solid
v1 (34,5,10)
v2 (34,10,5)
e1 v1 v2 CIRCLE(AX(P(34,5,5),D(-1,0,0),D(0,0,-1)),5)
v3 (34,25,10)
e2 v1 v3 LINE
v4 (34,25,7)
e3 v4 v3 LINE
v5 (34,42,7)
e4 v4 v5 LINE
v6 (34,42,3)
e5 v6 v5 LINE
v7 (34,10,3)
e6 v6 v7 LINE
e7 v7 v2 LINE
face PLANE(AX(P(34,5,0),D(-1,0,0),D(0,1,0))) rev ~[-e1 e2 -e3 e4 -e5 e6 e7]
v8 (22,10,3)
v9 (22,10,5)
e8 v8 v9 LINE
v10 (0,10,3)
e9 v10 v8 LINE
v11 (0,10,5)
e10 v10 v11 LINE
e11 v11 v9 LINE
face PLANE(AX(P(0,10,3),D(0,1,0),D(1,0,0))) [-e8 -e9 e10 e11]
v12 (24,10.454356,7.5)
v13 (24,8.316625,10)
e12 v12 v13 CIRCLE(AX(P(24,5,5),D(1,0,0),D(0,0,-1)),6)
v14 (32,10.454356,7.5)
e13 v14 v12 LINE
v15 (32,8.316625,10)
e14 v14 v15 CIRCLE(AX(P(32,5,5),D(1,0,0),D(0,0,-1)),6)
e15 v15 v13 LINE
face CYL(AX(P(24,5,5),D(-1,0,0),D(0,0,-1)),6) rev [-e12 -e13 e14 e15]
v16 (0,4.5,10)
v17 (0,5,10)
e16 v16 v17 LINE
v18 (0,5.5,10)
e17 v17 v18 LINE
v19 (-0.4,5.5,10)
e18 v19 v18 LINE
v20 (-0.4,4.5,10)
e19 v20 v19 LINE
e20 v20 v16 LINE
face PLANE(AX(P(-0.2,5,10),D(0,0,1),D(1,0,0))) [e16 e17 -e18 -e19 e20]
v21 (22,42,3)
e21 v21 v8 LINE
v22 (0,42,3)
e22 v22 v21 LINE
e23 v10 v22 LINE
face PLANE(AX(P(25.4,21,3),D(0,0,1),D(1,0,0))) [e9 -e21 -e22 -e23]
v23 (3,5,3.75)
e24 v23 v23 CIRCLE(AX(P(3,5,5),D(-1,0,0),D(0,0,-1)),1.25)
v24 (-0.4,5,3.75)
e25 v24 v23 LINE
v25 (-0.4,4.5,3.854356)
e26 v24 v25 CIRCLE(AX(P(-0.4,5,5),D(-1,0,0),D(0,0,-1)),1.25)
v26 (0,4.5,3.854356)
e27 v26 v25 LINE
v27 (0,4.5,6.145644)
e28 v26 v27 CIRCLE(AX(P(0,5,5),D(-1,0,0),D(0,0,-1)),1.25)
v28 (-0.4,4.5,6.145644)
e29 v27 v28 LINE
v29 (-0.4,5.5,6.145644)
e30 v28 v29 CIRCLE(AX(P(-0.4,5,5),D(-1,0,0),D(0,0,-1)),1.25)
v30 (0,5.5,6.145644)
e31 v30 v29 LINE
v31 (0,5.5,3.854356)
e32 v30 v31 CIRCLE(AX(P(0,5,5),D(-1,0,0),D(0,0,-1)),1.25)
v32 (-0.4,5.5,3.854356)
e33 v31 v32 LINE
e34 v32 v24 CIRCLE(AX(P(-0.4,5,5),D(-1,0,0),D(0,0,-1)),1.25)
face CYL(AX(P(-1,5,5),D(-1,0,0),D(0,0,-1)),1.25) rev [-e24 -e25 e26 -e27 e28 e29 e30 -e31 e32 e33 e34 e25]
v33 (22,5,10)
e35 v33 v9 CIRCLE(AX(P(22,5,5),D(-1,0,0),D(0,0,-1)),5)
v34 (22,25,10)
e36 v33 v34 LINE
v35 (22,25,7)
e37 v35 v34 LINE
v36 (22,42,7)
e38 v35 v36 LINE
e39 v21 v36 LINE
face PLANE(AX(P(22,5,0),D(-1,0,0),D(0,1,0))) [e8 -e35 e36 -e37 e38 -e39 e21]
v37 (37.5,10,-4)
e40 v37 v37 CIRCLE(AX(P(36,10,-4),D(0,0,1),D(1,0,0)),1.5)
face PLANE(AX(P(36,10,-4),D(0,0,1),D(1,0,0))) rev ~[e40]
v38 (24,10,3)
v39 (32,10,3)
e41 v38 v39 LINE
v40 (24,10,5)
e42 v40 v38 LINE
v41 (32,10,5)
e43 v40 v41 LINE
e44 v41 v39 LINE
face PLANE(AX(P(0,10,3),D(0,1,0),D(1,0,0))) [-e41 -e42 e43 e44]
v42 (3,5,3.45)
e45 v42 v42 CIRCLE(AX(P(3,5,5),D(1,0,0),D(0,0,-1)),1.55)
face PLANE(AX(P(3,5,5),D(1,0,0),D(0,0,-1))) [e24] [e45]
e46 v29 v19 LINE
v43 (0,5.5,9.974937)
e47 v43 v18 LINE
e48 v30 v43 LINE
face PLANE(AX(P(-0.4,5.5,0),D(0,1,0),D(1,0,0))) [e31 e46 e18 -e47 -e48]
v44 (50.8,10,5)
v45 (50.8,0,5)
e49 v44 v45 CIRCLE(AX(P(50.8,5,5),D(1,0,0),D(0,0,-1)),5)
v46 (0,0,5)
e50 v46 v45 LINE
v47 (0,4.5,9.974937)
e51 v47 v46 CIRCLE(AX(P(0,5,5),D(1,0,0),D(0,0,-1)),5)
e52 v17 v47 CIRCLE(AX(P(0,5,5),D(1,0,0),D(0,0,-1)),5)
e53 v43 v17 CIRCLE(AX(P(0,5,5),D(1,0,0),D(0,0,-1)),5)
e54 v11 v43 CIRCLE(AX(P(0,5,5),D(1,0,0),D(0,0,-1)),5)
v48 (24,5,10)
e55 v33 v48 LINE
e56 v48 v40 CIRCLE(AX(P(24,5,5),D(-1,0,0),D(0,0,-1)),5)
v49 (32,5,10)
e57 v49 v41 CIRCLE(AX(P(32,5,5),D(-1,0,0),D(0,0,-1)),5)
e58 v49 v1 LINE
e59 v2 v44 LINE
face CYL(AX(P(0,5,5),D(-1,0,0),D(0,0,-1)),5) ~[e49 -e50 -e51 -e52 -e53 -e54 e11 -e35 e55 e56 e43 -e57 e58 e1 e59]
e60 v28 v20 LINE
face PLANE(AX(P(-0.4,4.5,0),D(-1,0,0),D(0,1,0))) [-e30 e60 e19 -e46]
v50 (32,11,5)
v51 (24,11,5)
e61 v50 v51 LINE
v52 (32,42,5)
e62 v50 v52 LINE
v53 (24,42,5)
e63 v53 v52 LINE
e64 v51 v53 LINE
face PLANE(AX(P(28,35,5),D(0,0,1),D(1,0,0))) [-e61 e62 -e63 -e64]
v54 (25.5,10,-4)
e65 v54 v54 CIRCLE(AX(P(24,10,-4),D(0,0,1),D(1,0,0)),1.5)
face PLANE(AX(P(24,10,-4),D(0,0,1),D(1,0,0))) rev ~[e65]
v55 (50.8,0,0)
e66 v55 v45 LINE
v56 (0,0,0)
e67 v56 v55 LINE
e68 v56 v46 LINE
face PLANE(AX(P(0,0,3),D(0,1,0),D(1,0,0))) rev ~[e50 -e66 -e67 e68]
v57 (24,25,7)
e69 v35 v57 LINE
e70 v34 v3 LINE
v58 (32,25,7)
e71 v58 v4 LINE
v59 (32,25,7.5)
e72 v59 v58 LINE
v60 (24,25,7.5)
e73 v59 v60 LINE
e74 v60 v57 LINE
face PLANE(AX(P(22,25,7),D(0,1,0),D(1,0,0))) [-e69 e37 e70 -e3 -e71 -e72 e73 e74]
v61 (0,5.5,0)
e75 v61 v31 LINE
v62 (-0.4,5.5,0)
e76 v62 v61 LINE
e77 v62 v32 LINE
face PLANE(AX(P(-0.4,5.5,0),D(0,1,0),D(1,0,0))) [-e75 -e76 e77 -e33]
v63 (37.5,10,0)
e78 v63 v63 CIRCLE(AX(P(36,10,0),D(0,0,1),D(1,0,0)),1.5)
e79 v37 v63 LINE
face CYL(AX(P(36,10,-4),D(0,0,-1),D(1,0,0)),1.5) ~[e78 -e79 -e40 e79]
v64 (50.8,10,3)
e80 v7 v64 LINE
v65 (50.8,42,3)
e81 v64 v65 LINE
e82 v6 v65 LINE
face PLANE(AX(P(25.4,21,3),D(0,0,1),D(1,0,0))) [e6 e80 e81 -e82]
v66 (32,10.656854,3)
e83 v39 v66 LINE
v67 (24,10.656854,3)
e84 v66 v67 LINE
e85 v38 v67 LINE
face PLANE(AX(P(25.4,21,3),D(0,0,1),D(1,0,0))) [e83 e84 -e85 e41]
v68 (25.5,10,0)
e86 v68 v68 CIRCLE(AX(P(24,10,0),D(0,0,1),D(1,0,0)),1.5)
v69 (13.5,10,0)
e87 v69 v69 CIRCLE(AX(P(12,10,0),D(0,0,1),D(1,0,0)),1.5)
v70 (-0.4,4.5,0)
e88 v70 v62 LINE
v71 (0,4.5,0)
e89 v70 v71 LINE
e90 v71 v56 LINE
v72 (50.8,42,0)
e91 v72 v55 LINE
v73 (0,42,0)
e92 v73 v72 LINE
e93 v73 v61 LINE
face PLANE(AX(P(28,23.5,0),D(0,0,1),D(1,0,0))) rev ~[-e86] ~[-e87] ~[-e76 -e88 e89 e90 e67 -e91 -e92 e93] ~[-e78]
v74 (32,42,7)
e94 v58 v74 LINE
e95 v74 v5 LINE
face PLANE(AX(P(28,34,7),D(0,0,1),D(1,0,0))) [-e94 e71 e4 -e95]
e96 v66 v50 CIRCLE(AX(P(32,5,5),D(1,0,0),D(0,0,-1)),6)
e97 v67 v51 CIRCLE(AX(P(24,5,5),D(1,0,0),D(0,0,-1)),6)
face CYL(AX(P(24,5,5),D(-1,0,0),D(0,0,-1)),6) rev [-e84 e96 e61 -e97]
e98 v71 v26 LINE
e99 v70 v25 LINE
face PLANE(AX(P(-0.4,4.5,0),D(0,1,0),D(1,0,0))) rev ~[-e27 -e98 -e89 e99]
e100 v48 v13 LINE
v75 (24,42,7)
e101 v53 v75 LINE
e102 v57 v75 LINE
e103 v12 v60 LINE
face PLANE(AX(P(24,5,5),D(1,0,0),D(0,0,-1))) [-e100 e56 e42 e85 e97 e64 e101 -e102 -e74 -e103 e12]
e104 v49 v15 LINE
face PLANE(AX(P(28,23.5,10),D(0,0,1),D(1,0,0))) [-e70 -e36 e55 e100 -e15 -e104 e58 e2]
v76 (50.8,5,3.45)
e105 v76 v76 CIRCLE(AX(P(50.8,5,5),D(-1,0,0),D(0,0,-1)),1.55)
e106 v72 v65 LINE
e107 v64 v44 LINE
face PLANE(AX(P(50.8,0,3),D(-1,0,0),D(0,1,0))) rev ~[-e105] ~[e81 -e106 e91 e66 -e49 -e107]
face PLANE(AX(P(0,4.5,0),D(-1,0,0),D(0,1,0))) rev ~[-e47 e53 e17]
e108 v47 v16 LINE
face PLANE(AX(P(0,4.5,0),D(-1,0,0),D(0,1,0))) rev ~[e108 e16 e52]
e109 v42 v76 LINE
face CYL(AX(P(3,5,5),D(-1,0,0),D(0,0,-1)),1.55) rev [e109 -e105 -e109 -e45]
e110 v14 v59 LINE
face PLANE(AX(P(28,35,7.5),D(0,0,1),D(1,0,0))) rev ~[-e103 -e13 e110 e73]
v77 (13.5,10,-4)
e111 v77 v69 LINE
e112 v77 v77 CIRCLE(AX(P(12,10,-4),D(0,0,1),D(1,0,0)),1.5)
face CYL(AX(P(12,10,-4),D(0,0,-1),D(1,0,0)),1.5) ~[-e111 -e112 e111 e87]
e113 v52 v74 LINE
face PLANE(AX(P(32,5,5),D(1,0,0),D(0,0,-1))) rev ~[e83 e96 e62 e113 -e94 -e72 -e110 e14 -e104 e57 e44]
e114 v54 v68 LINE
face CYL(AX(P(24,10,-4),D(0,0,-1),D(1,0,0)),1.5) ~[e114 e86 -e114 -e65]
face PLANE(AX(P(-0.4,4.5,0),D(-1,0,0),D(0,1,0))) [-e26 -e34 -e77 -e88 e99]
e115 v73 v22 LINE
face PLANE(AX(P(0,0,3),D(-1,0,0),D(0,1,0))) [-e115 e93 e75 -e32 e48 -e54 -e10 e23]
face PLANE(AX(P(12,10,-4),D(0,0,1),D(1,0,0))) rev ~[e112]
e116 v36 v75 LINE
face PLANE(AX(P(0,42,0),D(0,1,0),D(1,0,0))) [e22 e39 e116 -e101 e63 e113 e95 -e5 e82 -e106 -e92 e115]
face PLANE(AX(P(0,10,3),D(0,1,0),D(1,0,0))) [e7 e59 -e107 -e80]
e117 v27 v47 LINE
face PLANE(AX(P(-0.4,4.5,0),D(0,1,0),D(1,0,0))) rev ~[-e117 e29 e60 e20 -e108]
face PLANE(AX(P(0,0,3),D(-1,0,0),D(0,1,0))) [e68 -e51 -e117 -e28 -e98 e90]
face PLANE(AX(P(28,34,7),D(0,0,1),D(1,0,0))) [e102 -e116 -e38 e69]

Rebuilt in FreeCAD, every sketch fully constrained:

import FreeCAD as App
import Part
import Sketcher
from FreeCAD import Vector

doc = App.newDocument("Part")
body = doc.addObject("PartDesign::Body", "Body")

# Sketch on XY plane
sketch1 = body.newObject("Sketcher::SketchObject", "Sketch")
sketch1.AttachmentSupport = (doc.getObject("XY_Plane"), [""])
sketch1.MapMode = "FlatFace"
sketch1.AttachmentOffset = App.Placement(Vector(0, 0, -4), App.Rotation())
sketch1.addGeometry(Part.Circle(Vector(12, 10, 0), Vector(0, 0, 1), 1.5), False)
sketch1.addConstraint([
    Sketcher.Constraint("Diameter", 0, 3.0),
    Sketcher.Constraint("DistanceX", -1, 1, 0, 3, 12.0),
    Sketcher.Constraint("DistanceY", -1, 1, 0, 3, 10.0),
])
pad1 = body.newObject("PartDesign::Pad", "Pad")
pad1.Profile = sketch1
pad1.Length = 4
body2 = doc.addObject("PartDesign::Body", "Body001")

# Sketch on XY plane
sketch2 = body2.newObject("Sketcher::SketchObject", "Sketch001")
sketch2.AttachmentSupport = (doc.getObject("XY_Plane001"), [""])
sketch2.MapMode = "FlatFace"
sketch2.AttachmentOffset = App.Placement(Vector(0, 0, -4), App.Rotation())
sketch2.addGeometry(Part.Circle(Vector(24, 10, 0), Vector(0, 0, 1), 1.5), False)
sketch2.addConstraint([
    Sketcher.Constraint("Diameter", 0, 3.0),
    Sketcher.Constraint("DistanceX", -1, 1, 0, 3, 24.0),
    Sketcher.Constraint("DistanceY", -1, 1, 0, 3, 10.0),
])
pad2 = body2.newObject("PartDesign::Pad", "Pad001")
pad2.Profile = sketch2
pad2.Length = 4
body3 = doc.addObject("PartDesign::Body", "Body002")

# Sketch on XY plane
sketch3 = body3.newObject("Sketcher::SketchObject", "Sketch002")
sketch3.AttachmentSupport = (doc.getObject("XY_Plane002"), [""])
sketch3.MapMode = "FlatFace"
sketch3.AttachmentOffset = App.Placement(Vector(0, 0, -4), App.Rotation())
sketch3.addGeometry(Part.Circle(Vector(36, 10, 0), Vector(0, 0, 1), 1.5), False)
sketch3.addConstraint([
    Sketcher.Constraint("Diameter", 0, 3.0),
    Sketcher.Constraint("DistanceX", -1, 1, 0, 3, 36.0),
    Sketcher.Constraint("DistanceY", -1, 1, 0, 3, 10.0),
])
pad3 = body3.newObject("PartDesign::Pad", "Pad002")
pad3.Profile = sketch3
pad3.Length = 4
body4 = doc.addObject("PartDesign::Body", "Body003")

# Sketch on XY plane
sketch4 = body4.newObject("Sketcher::SketchObject", "Sketch003")
sketch4.AttachmentSupport = (doc.getObject("XY_Plane003"), [""])
sketch4.MapMode = "FlatFace"
sketch4.addGeometry(Part.Circle(Vector(0, 0, 0), Vector(0, 0, 1), 1.2), False)
sketch4.addConstraint([
    Sketcher.Constraint("Coincident", 0, 3, -1, 1),
    Sketcher.Constraint("Diameter", 0, 2.5),
])
pad4 = body4.newObject("PartDesign::Pad", "Pad003")
pad4.Profile = sketch4
pad4.Length = 10
body5 = doc.addObject("PartDesign::Body", "Body004")
doc.recompute()

body4.Placement = App.Placement(Vector(0, 0, 0), App.Rotation(Vector(0, 1, 0), 90))
boolean = body5.newObject("PartDesign::Boolean", "Boolean")
boolean.Type = "Fuse"
boolean.addObjects([body4])
body6 = doc.addObject("PartDesign::Body", "Body005")
doc.recompute()

body5.Placement = App.Placement(Vector(-1, 5, 5), App.Rotation(Vector(0, 0, 1), 0))
boolean2 = body6.newObject("PartDesign::Boolean", "Boolean001")
boolean2.Type = "Fuse"
boolean2.addObjects([body5])
body7 = doc.addObject("PartDesign::Body", "Body006")

# Sketch on XY plane
sketch5 = body7.newObject("Sketcher::SketchObject", "Sketch004")
sketch5.AttachmentSupport = (doc.getObject("XY_Plane006"), [""])
sketch5.MapMode = "FlatFace"
sketch5.addGeometry(Part.Circle(Vector(0, 0, 0), Vector(0, 0, 1), 1.6), False)
sketch5.addConstraint([
    Sketcher.Constraint("Coincident", 0, 3, -1, 1),
    Sketcher.Constraint("Diameter", 0, 3.1),
])
pad5 = body7.newObject("PartDesign::Pad", "Pad004")
pad5.Profile = sketch5
pad5.Length = 50.8
body8 = doc.addObject("PartDesign::Body", "Body007")
doc.recompute()

body7.Placement = App.Placement(Vector(0, 0, 0), App.Rotation(Vector(0, 1, 0), 90))
boolean3 = body8.newObject("PartDesign::Boolean", "Boolean002")
boolean3.Type = "Fuse"
boolean3.addObjects([body7])
body9 = doc.addObject("PartDesign::Body", "Body008")
doc.recompute()

body8.Placement = App.Placement(Vector(3, 5, 5), App.Rotation(Vector(0, 0, 1), 0))
boolean4 = body9.newObject("PartDesign::Boolean", "Boolean003")
boolean4.Type = "Fuse"
boolean4.addObjects([body8])
body10 = doc.addObject("PartDesign::Body", "Body009")

# Sketch on XY plane
sketch6 = body10.newObject("Sketcher::SketchObject", "Sketch005")
sketch6.AttachmentSupport = (doc.getObject("XY_Plane009"), [""])
sketch6.MapMode = "FlatFace"
sketch6.addGeometry(Part.Circle(Vector(0, 0, 0), Vector(0, 0, 1), 6), False)
sketch6.addConstraint([
    Sketcher.Constraint("Coincident", 0, 3, -1, 1),
    Sketcher.Constraint("Diameter", 0, 12.0),
])
pad6 = body10.newObject("PartDesign::Pad", "Pad005")
pad6.Profile = sketch6
pad6.Length = 8
body11 = doc.addObject("PartDesign::Body", "Body010")
doc.recompute()

body10.Placement = App.Placement(Vector(0, 0, 0), App.Rotation(Vector(0, 1, 0), 90))
boolean5 = body11.newObject("PartDesign::Boolean", "Boolean004")
boolean5.Type = "Fuse"
boolean5.addObjects([body10])
body12 = doc.addObject("PartDesign::Body", "Body011")
doc.recompute()

body11.Placement = App.Placement(Vector(24, 5, 5), App.Rotation(Vector(0, 0, 1), 0))
boolean6 = body12.newObject("PartDesign::Boolean", "Boolean005")
boolean6.Type = "Fuse"
boolean6.addObjects([body11])
body13 = doc.addObject("PartDesign::Body", "Body012")

# Sketch on XY plane
sketch7 = body13.newObject("Sketcher::SketchObject", "Sketch006")
sketch7.AttachmentSupport = (doc.getObject("XY_Plane012"), [""])
sketch7.MapMode = "FlatFace"
sketch7.AttachmentOffset = App.Placement(Vector(0, 0, 7), App.Rotation())
sketch7.addGeometry([
    Part.LineSegment(Vector(22, 43, 0), Vector(22, 25, 0)),
    Part.LineSegment(Vector(22, 25, 0), Vector(34, 25, 0)),
    Part.LineSegment(Vector(34, 25, 0), Vector(34, 43, 0)),
    Part.LineSegment(Vector(34, 43, 0), Vector(22, 43, 0)),
], False)
sketch7.addConstraint([
    Sketcher.Constraint("Coincident", 0, 2, 1, 1),
    Sketcher.Constraint("Coincident", 1, 2, 2, 1),
    Sketcher.Constraint("Coincident", 2, 2, 3, 1),
    Sketcher.Constraint("Coincident", 3, 2, 0, 1),
    Sketcher.Constraint("Vertical", 0),
    Sketcher.Constraint("Horizontal", 1),
    Sketcher.Constraint("Vertical", 2),
    Sketcher.Constraint("Horizontal", 3),
    Sketcher.Constraint("DistanceX", 1, 1, 1, 2, 12.0),
    Sketcher.Constraint("DistanceY", 0, 2, 0, 1, 18.0),
    Sketcher.Constraint("DistanceX", -1, 1, 0, 2, 22.0),
    Sketcher.Constraint("DistanceY", -1, 1, 0, 2, 25.0),
])
pad7 = body13.newObject("PartDesign::Pad", "Pad006")
pad7.Profile = sketch7
pad7.Length = 3
body14 = doc.addObject("PartDesign::Body", "Body013")

# Sketch on XY plane
sketch8 = body14.newObject("Sketcher::SketchObject", "Sketch007")
sketch8.AttachmentSupport = (doc.getObject("XY_Plane013"), [""])
sketch8.MapMode = "FlatFace"
sketch8.AttachmentOffset = App.Placement(Vector(0, 0, 5), App.Rotation())
sketch8.addGeometry([
    Part.LineSegment(Vector(24, 60, 0), Vector(24, 10, 0)),
    Part.LineSegment(Vector(24, 10, 0), Vector(32, 10, 0)),
    Part.LineSegment(Vector(32, 10, 0), Vector(32, 60, 0)),
    Part.LineSegment(Vector(32, 60, 0), Vector(24, 60, 0)),
], False)
sketch8.addConstraint([
    Sketcher.Constraint("Coincident", 0, 2, 1, 1),
    Sketcher.Constraint("Coincident", 1, 2, 2, 1),
    Sketcher.Constraint("Coincident", 2, 2, 3, 1),
    Sketcher.Constraint("Coincident", 3, 2, 0, 1),
    Sketcher.Constraint("Vertical", 0),
    Sketcher.Constraint("Horizontal", 1),
    Sketcher.Constraint("Vertical", 2),
    Sketcher.Constraint("Horizontal", 3),
    Sketcher.Constraint("DistanceX", 1, 1, 1, 2, 8.0),
    Sketcher.Constraint("DistanceY", 0, 2, 0, 1, 50.0),
    Sketcher.Constraint("DistanceX", -1, 1, 0, 2, 24.0),
    Sketcher.Constraint("DistanceY", -1, 1, 0, 2, 10.0),
])
pad8 = body14.newObject("PartDesign::Pad", "Pad007")
pad8.Profile = sketch8
pad8.Length = 2.5
body15 = doc.addObject("PartDesign::Body", "Body014")

# Sketch on XY plane
sketch9 = body15.newObject("Sketcher::SketchObject", "Sketch008")
sketch9.AttachmentSupport = (doc.getObject("XY_Plane014"), [""])
sketch9.MapMode = "FlatFace"
sketch9.addGeometry([
    Part.LineSegment(Vector(22, 42, 0), Vector(22, 5, 0)),
    Part.LineSegment(Vector(22, 5, 0), Vector(34, 5, 0)),
    Part.LineSegment(Vector(34, 5, 0), Vector(34, 42, 0)),
    Part.LineSegment(Vector(34, 42, 0), Vector(22, 42, 0)),
], False)
sketch9.addConstraint([
    Sketcher.Constraint("Coincident", 0, 2, 1, 1),
    Sketcher.Constraint("Coincident", 1, 2, 2, 1),
    Sketcher.Constraint("Coincident", 2, 2, 3, 1),
    Sketcher.Constraint("Coincident", 3, 2, 0, 1),
    Sketcher.Constraint("Vertical", 0),
    Sketcher.Constraint("Horizontal", 1),
    Sketcher.Constraint("Vertical", 2),
    Sketcher.Constraint("Horizontal", 3),
    Sketcher.Constraint("DistanceX", 1, 1, 1, 2, 12.0),
    Sketcher.Constraint("DistanceY", 0, 2, 0, 1, 37.0),
    Sketcher.Constraint("DistanceX", -1, 1, 0, 2, 22.0),
    Sketcher.Constraint("DistanceY", -1, 1, 0, 2, 5.0),
])
pad9 = body15.newObject("PartDesign::Pad", "Pad008")
pad9.Profile = sketch9
pad9.Length = 10
doc.recompute()

boolean7 = body15.newObject("PartDesign::Boolean", "Boolean006")
boolean7.Type = "Cut"
boolean7.addObjects([body14])
doc.recompute()

boolean8 = body15.newObject("PartDesign::Boolean", "Boolean007")
boolean8.Type = "Cut"
boolean8.addObjects([body13])
doc.recompute()

boolean9 = body15.newObject("PartDesign::Boolean", "Boolean008")
boolean9.Type = "Cut"
boolean9.addObjects([body12])
body16 = doc.addObject("PartDesign::Body", "Body015")

# Sketch on XY plane
sketch10 = body16.newObject("Sketcher::SketchObject", "Sketch009")
sketch10.AttachmentSupport = (doc.getObject("XY_Plane015"), [""])
sketch10.MapMode = "FlatFace"
sketch10.addGeometry([
    Part.LineSegment(Vector(-0.4, 5.5, 0), Vector(-0.4, 4.5, 0)),
    Part.LineSegment(Vector(-0.4, 4.5, 0), Vector(0, 4.5, 0)),
    Part.LineSegment(Vector(0, 4.5, 0), Vector(0, 5.5, 0)),
    Part.LineSegment(Vector(0, 5.5, 0), Vector(-0.4, 5.5, 0)),
], False)
sketch10.addConstraint([
    Sketcher.Constraint("Coincident", 0, 2, 1, 1),
    Sketcher.Constraint("Coincident", 1, 2, 2, 1),
    Sketcher.Constraint("Coincident", 2, 2, 3, 1),
    Sketcher.Constraint("Coincident", 3, 2, 0, 1),
    Sketcher.Constraint("Vertical", 0),
    Sketcher.Constraint("Horizontal", 1),
    Sketcher.Constraint("Vertical", 2),
    Sketcher.Constraint("Horizontal", 3),
    Sketcher.Constraint("PointOnObject", 1, 2, -2),
    Sketcher.Constraint("DistanceY", 0, 2, 0, 1, 1.0),
    Sketcher.Constraint("DistanceX", 1, 1, 1, 2, 0.4),
    Sketcher.Constraint("DistanceY", -1, 1, 0, 2, 4.5),
])
pad10 = body16.newObject("PartDesign::Pad", "Pad009")
pad10.Profile = sketch10
pad10.Length = 10
body17 = doc.addObject("PartDesign::Body", "Body016")

# Sketch on XY plane
sketch11 = body17.newObject("Sketcher::SketchObject", "Sketch010")
sketch11.AttachmentSupport = (doc.getObject("XY_Plane016"), [""])
sketch11.MapMode = "FlatFace"
sketch11.AttachmentOffset = App.Placement(Vector(0, 0, 3), App.Rotation())
sketch11.addGeometry([
    Part.LineSegment(Vector(0, 10, 0), Vector(0, 0, 0)),
    Part.LineSegment(Vector(0, 0, 0), Vector(51, 0, 0)),
    Part.LineSegment(Vector(51, 0, 0), Vector(51, 10, 0)),
    Part.LineSegment(Vector(51, 10, 0), Vector(0, 10, 0)),
], False)
sketch11.addConstraint([
    Sketcher.Constraint("Coincident", 0, 2, 1, 1),
    Sketcher.Constraint("Coincident", 1, 2, 2, 1),
    Sketcher.Constraint("Coincident", 2, 2, 3, 1),
    Sketcher.Constraint("Coincident", 3, 2, 0, 1),
    Sketcher.Constraint("Vertical", 0),
    Sketcher.Constraint("Horizontal", 1),
    Sketcher.Constraint("Vertical", 2),
    Sketcher.Constraint("Horizontal", 3),
    Sketcher.Constraint("Coincident", 0, 2, -1, 1),
    Sketcher.Constraint("DistanceY", 0, 2, 0, 1, 10.0),
    Sketcher.Constraint("DistanceX", 1, 1, 1, 2, 50.8),
])
pad11 = body17.newObject("PartDesign::Pad", "Pad010")
pad11.Profile = sketch11
pad11.Length = 2
body18 = doc.addObject("PartDesign::Body", "Body017")

# Sketch on XY plane
sketch12 = body18.newObject("Sketcher::SketchObject", "Sketch011")
sketch12.AttachmentSupport = (doc.getObject("XY_Plane017"), [""])
sketch12.MapMode = "FlatFace"
sketch12.addGeometry(Part.Circle(Vector(0, 0, 0), Vector(0, 0, 1), 5), False)
sketch12.addConstraint([
    Sketcher.Constraint("Coincident", 0, 3, -1, 1),
    Sketcher.Constraint("Diameter", 0, 10.0),
])
pad12 = body18.newObject("PartDesign::Pad", "Pad011")
pad12.Profile = sketch12
pad12.Length = 50.8
body19 = doc.addObject("PartDesign::Body", "Body018")
doc.recompute()

body18.Placement = App.Placement(Vector(0, 0, 0), App.Rotation(Vector(0, 1, 0), 90))
boolean10 = body19.newObject("PartDesign::Boolean", "Boolean009")
boolean10.Type = "Fuse"
boolean10.addObjects([body18])
body20 = doc.addObject("PartDesign::Body", "Body019")
doc.recompute()

body19.Placement = App.Placement(Vector(0, 5, 5), App.Rotation(Vector(0, 0, 1), 0))
boolean11 = body20.newObject("PartDesign::Boolean", "Boolean010")
boolean11.Type = "Fuse"
boolean11.addObjects([body19])
body21 = doc.addObject("PartDesign::Body", "Body020")

# Sketch on XY plane
sketch13 = body21.newObject("Sketcher::SketchObject", "Sketch012")
sketch13.AttachmentSupport = (doc.getObject("XY_Plane020"), [""])
sketch13.MapMode = "FlatFace"
sketch13.addGeometry([
    Part.LineSegment(Vector(0, 42, 0), Vector(0, 0, 0)),
    Part.LineSegment(Vector(0, 0, 0), Vector(51, 0, 0)),
    Part.LineSegment(Vector(51, 0, 0), Vector(51, 42, 0)),
    Part.LineSegment(Vector(51, 42, 0), Vector(0, 42, 0)),
], False)
sketch13.addConstraint([
    Sketcher.Constraint("Coincident", 0, 2, 1, 1),
    Sketcher.Constraint("Coincident", 1, 2, 2, 1),
    Sketcher.Constraint("Coincident", 2, 2, 3, 1),
    Sketcher.Constraint("Coincident", 3, 2, 0, 1),
    Sketcher.Constraint("Vertical", 0),
    Sketcher.Constraint("Horizontal", 1),
    Sketcher.Constraint("Vertical", 2),
    Sketcher.Constraint("Horizontal", 3),
    Sketcher.Constraint("Coincident", 0, 2, -1, 1),
    Sketcher.Constraint("DistanceY", 0, 2, 0, 1, 42.0),
    Sketcher.Constraint("DistanceX", 1, 1, 1, 2, 50.8),
])
pad13 = body21.newObject("PartDesign::Pad", "Pad012")
pad13.Profile = sketch13
pad13.Length = 3
doc.recompute()

boolean12 = body21.newObject("PartDesign::Boolean", "Boolean011")
boolean12.Type = "Fuse"
boolean12.addObjects([body17])
doc.recompute()

boolean13 = body21.newObject("PartDesign::Boolean", "Boolean012")
boolean13.Type = "Fuse"
boolean13.addObjects([body20])
doc.recompute()

boolean14 = body21.newObject("PartDesign::Boolean", "Boolean013")
boolean14.Type = "Fuse"
boolean14.addObjects([body16])
doc.recompute()

boolean15 = body21.newObject("PartDesign::Boolean", "Boolean014")
boolean15.Type = "Fuse"
boolean15.addObjects([body15])
doc.recompute()

boolean16 = body21.newObject("PartDesign::Boolean", "Boolean015")
boolean16.Type = "Cut"
boolean16.addObjects([body9])
doc.recompute()

boolean17 = body21.newObject("PartDesign::Boolean", "Boolean016")
boolean17.Type = "Cut"
boolean17.addObjects([body6])
doc.recompute()

boolean18 = body21.newObject("PartDesign::Boolean", "Boolean017")
boolean18.Type = "Fuse"
boolean18.addObjects([body])
doc.recompute()

boolean19 = body21.newObject("PartDesign::Boolean", "Boolean018")
boolean19.Type = "Fuse"
boolean19.addObjects([body2])
doc.recompute()

boolean20 = body21.newObject("PartDesign::Boolean", "Boolean019")
boolean20.Type = "Fuse"
boolean20.addObjects([body3])

doc.recompute()
